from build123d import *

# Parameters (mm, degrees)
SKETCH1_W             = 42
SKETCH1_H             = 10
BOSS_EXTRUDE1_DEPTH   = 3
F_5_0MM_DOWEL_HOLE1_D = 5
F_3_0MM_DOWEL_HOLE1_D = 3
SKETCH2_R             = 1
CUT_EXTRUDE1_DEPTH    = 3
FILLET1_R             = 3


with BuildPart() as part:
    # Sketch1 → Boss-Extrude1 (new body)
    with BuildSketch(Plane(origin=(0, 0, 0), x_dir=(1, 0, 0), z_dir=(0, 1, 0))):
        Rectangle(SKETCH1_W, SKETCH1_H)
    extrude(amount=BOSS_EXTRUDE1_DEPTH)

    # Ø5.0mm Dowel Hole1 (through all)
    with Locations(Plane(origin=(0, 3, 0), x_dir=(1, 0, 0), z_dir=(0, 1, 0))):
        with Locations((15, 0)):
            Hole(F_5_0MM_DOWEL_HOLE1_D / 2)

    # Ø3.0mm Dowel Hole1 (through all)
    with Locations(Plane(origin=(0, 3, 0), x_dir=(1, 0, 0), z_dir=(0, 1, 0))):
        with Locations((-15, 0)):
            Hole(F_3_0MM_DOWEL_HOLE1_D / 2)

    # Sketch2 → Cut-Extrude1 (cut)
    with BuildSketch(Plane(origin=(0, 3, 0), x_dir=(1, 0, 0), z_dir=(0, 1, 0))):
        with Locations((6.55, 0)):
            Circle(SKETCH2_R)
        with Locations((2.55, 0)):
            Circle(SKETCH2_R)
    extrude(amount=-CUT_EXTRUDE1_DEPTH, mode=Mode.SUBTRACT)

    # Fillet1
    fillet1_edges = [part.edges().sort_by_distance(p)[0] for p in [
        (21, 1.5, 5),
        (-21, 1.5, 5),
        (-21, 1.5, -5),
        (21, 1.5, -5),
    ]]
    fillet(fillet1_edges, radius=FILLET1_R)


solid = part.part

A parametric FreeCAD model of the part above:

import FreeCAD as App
import Part
import Sketcher
Q = App.Units.Quantity


def edges_at(feature, points):
    """Names of the edges that pass closest to the given points."""
    edges = feature.Shape.Edges
    near = lambda p: min(range(len(edges)), key=lambda i: edges[i].distToShape(Part.Vertex(*p))[0])
    return sorted({f"Edge{near(p) + 1}" for p in points})

doc = App.newDocument("Part")
params = doc.addObject("Spreadsheet::Sheet", "Params")
for row, (alias, value) in enumerate([
    ("sketch1_width", "42 mm"),
    ("sketch1_height", "10 mm"),
    ("pad1_length", "3 mm"),
    ("sketch2_diameter", "5 mm"),
    ("hole_diameter", "5 mm"),
    ("sketch3_diameter", "3 mm"),
    ("hole2_diameter", "3 mm"),
    ("sketch4_diameter", "2 mm"),
    ("pocket1_length", "3 mm"),
    ("fillet_radius", "3 mm"),
], start=1):
    params.set(f"A{row}", alias)
    params.set(f"B{row}", "=" + value)
    params.setAlias(f"B{row}", alias)

body = doc.addObject("PartDesign::Body", "Body")

# Sketch on XZ plane
sketch1 = doc.addObject("Sketcher::SketchObject", "Sketch")
body.addObject(sketch1)
sketch1.AttachmentSupport = (doc.XZ_Plane, [""])
sketch1.MapMode = "FlatFace"
sketch1.addGeometry([
    Part.LineSegment(App.Vector(-21, -5, 0), App.Vector(-21, 5, 0)),
    Part.LineSegment(App.Vector(-21, 5, 0), App.Vector(21, 5, 0)),
    Part.LineSegment(App.Vector(21, 5, 0), App.Vector(21, -5, 0)),
    Part.LineSegment(App.Vector(21, -5, 0), App.Vector(-21, -5, 0)),
], False)
sketch1.addConstraint([
    Sketcher.Constraint("Coincident", 0, 2, 1, 1),
    Sketcher.Constraint("Coincident", 1, 2, 2, 1),
    Sketcher.Constraint("Coincident", 2, 2, 3, 1),
    Sketcher.Constraint("Coincident", 3, 2, 0, 1),
    Sketcher.Constraint("Vertical", 0),
    Sketcher.Constraint("Horizontal", 1),
    Sketcher.Constraint("Vertical", 2),
    Sketcher.Constraint("Horizontal", 3),
    Sketcher.Constraint("Symmetric", 0, 2, 2, 2, -1, 1),
    Sketcher.Constraint("DistanceX", 1, 1, 1, 2, Q("42 mm")),
    Sketcher.Constraint("DistanceY", 0, 1, 0, 2, Q("10 mm")),
])
sketch1.setExpression("Constraints[9]", "Params.sketch1_width")
sketch1.setExpression("Constraints[10]", "Params.sketch1_height")
pad1 = doc.addObject("PartDesign::Pad", "Pad")
body.addObject(pad1)
pad1.Profile = sketch1
pad1.setExpression("Length", "Params.pad1_length")
pad1.Reversed = True

# Sketch on XZ plane
sketch2 = doc.addObject("Sketcher::SketchObject", "Sketch001")
body.addObject(sketch2)
sketch2.AttachmentSupport = (doc.XZ_Plane, [""])
sketch2.MapMode = "FlatFace"
sketch2.AttachmentOffset = App.Placement(App.Vector(0, 0, -3), App.Rotation())
sketch2.addGeometry(Part.Circle(App.Vector(15, 0, 0), App.Vector(0, 0, 1), 2.5), False)
sketch2.addConstraint([
    Sketcher.Constraint("PointOnObject", 0, 3, -1),
    Sketcher.Constraint("Diameter", 0, Q("5 mm")),
    Sketcher.Constraint("DistanceX", -1, 1, 0, 3, Q("15 mm")),
])
sketch2.setExpression("Constraints[1]", "Params.sketch2_diameter")
doc.recompute()
hole = doc.addObject("PartDesign::Hole", "Hole")
body.addObject(hole)
hole.Profile = sketch2
hole.ThreadType = "None"
hole.setExpression("Diameter", "Params.hole_diameter")
hole.DepthType = "ThroughAll"
hole.Reversed = True

# Sketch on XZ plane
sketch3 = doc.addObject("Sketcher::SketchObject", "Sketch002")
body.addObject(sketch3)
sketch3.AttachmentSupport = (doc.XZ_Plane, [""])
sketch3.MapMode = "FlatFace"
sketch3.AttachmentOffset = App.Placement(App.Vector(0, 0, -3), App.Rotation())
sketch3.addGeometry(Part.Circle(App.Vector(-15, 0, 0), App.Vector(0, 0, 1), 1.5), False)
sketch3.addConstraint([
    Sketcher.Constraint("PointOnObject", 0, 3, -1),
    Sketcher.Constraint("Diameter", 0, Q("3 mm")),
    Sketcher.Constraint("DistanceX", 0, 3, -1, 1, Q("15 mm")),
])
sketch3.setExpression("Constraints[1]", "Params.sketch3_diameter")
doc.recompute()
hole2 = doc.addObject("PartDesign::Hole", "Hole001")
body.addObject(hole2)
hole2.Profile = sketch3
hole2.ThreadType = "None"
hole2.setExpression("Diameter", "Params.hole2_diameter")
hole2.DepthType = "ThroughAll"
hole2.Reversed = True

# Sketch on XZ plane
sketch4 = doc.addObject("Sketcher::SketchObject", "Sketch003")
body.addObject(sketch4)
sketch4.AttachmentSupport = (doc.XZ_Plane, [""])
sketch4.MapMode = "FlatFace"
sketch4.AttachmentOffset = App.Placement(App.Vector(0, 0, -3), App.Rotation())
sketch4.addGeometry([
    Part.Circle(App.Vector(6.5, 0, 0), App.Vector(0, 0, 1), 1),
    Part.Circle(App.Vector(2.5, 0, 0), App.Vector(0, 0, 1), 1),
], False)
sketch4.addConstraint([
    Sketcher.Constraint("Equal", 0, 1),
    Sketcher.Constraint("PointOnObject", 0, 3, -1),
    Sketcher.Constraint("PointOnObject", 1, 3, -1),
    Sketcher.Constraint("Diameter", 0, Q("2 mm")),
    Sketcher.Constraint("DistanceX", 1, 3, 0, 3, Q("4 mm")),
    Sketcher.Constraint("DistanceX", -1, 1, 0, 3, Q("6.55 mm")),
])
sketch4.setExpression("Constraints[3]", "Params.sketch4_diameter")
pocket1 = doc.addObject("PartDesign::Pocket", "Pocket")
body.addObject(pocket1)
pocket1.Profile = sketch4
pocket1.setExpression("Length", "Params.pocket1_length")
pocket1.Reversed = True
doc.recompute()

fillet = doc.addObject("PartDesign::Fillet", "Fillet")
body.addObject(fillet)
fillet.Base = (pocket1, edges_at(pocket1, [
    (21, 1.5, 5),
    (-21, 1.5, 5),
    (-21, 1.5, -5),
    (21, 1.5, -5),
]))
fillet.setExpression("Radius", "Params.fillet_radius")

doc.recompute()
